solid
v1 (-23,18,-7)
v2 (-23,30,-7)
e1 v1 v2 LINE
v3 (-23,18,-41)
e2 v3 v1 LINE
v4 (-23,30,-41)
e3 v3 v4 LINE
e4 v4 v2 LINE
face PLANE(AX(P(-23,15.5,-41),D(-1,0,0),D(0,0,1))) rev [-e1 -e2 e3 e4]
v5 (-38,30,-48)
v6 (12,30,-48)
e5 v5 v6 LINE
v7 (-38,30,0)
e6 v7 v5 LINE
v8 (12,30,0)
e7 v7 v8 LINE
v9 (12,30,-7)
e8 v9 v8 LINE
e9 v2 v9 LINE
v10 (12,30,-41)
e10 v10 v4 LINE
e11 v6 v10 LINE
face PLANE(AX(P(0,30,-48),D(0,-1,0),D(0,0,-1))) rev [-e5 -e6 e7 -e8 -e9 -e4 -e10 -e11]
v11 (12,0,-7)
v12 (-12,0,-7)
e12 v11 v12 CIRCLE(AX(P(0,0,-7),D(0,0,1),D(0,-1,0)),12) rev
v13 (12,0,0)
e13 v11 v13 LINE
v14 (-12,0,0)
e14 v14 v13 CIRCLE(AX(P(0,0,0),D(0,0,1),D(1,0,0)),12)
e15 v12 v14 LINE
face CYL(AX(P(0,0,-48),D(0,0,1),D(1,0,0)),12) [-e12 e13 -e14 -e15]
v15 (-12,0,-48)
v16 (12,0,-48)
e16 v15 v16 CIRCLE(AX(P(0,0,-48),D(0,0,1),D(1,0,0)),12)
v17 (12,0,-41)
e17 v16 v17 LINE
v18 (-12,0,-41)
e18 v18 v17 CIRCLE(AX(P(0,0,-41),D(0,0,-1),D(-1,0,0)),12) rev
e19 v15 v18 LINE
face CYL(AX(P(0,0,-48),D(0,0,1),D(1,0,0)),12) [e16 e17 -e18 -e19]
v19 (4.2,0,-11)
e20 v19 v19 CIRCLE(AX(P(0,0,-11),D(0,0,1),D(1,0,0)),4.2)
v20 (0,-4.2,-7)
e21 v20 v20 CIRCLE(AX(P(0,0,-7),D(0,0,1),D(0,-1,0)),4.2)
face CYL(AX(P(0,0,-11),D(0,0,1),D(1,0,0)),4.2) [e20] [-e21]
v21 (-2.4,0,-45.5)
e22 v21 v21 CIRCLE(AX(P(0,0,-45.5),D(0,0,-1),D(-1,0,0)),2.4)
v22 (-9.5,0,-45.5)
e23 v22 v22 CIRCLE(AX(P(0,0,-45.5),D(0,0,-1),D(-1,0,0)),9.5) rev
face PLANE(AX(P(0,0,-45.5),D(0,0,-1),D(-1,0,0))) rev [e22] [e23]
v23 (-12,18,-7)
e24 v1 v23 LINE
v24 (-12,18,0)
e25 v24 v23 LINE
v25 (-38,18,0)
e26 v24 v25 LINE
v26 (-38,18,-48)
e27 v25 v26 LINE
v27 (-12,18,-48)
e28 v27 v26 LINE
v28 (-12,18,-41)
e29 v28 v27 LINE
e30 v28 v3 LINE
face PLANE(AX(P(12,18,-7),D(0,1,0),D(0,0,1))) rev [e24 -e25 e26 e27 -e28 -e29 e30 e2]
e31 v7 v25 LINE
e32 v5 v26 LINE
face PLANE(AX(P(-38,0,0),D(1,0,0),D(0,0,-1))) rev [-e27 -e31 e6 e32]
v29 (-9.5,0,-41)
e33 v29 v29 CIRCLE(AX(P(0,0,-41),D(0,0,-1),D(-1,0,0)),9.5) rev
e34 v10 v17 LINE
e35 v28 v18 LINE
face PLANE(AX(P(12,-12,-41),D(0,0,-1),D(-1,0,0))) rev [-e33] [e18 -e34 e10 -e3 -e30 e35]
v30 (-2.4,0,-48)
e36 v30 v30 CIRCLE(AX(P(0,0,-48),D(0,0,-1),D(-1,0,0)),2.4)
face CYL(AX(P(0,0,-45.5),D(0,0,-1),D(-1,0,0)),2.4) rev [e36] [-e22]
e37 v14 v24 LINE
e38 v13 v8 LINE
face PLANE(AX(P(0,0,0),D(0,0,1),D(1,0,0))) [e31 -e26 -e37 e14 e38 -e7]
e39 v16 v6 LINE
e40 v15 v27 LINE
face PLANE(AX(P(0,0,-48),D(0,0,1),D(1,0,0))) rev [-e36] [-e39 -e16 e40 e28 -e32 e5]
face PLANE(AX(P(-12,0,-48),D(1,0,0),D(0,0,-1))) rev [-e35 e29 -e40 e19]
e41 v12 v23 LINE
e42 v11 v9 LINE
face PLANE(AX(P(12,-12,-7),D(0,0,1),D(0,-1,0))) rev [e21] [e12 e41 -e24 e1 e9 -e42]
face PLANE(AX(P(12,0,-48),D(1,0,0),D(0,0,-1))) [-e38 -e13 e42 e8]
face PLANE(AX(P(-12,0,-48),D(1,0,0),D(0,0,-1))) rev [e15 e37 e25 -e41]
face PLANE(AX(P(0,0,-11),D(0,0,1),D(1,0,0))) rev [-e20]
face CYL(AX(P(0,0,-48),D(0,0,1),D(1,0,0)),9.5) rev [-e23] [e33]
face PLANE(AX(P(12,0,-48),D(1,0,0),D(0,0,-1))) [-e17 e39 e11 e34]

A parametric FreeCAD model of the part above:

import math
import FreeCAD as App
import Part
import Sketcher
from FreeCAD import Vector
Q = App.Units.Quantity

doc = App.newDocument("Part")
body = doc.addObject("PartDesign::Body", "Body")

# Sketch on XY plane
sketch1 = doc.addObject("Sketcher::SketchObject", "Sketch")
body.addObject(sketch1)
sketch1.AttachmentSupport = (doc.XY_Plane, [""])
sketch1.MapMode = "FlatFace"
sketch1.addGeometry([
    Part.LineSegment(Vector(-12, 30, 0), Vector(-12, 0, 0)),  # 0
    Part.ArcOfCircle(Part.Circle(Vector(0, 0, 0), Vector(0, 0, 1), 12), math.radians(180), math.radians(360)),  # 1
    Part.LineSegment(Vector(12, 0, 0), Vector(12, 30, 0)),  # 2
    Part.LineSegment(Vector(12, 30, 0), Vector(-12, 30, 0)),  # 3
    Part.Circle(Vector(0, 0, 0), Vector(0, 0, 1), 10),  # 4
], False)
sketch1.addConstraint([
    Sketcher.Constraint("Tangent", 0, 2, 1, 1),
    Sketcher.Constraint("Tangent", 1, 2, 2, 1),
    Sketcher.Constraint("Coincident", 2, 2, 3, 1),
    Sketcher.Constraint("Coincident", 3, 2, 0, 1),
    Sketcher.Constraint("Vertical", 0),
    Sketcher.Constraint("Vertical", 2),
    Sketcher.Constraint("Horizontal", 3),
    Sketcher.Constraint("Coincident", 1, 3, -1, 1),
    Sketcher.Constraint("Coincident", 4, 3, -1, 1),
    Sketcher.Constraint("Diameter", 4, Q("19 mm")),
    Sketcher.Constraint("Radius", 1, Q("12 mm")),
    Sketcher.Constraint("DistanceY", 0, 2, 0, 1, Q("30 mm")),
])
pad1 = doc.addObject("PartDesign::Pad", "Pad")
body.addObject(pad1)
pad1.Profile = sketch1
pad1.Length = 48
pad1.Reversed = True

# Sketch on YZ plane
sketch2 = doc.addObject("Sketcher::SketchObject", "Sketch001")
body.addObject(sketch2)
sketch2.AttachmentSupport = (doc.YZ_Plane, [""])
sketch2.MapMode = "FlatFace"
sketch2.AttachmentOffset = App.Placement(Vector(0, 0, -12), App.Rotation())
sketch2.addGeometry([
    Part.LineSegment(Vector(18, -41, 0), Vector(-12, -41, 0)),
    Part.LineSegment(Vector(-12, -41, 0), Vector(-12, -7, 0)),
    Part.LineSegment(Vector(-12, -7, 0), Vector(18, -7, 0)),
    Part.LineSegment(Vector(18, -7, 0), Vector(18, -41, 0)),
], False)
sketch2.addConstraint([
    Sketcher.Constraint("Coincident", 0, 2, 1, 1),
    Sketcher.Constraint("Coincident", 1, 2, 2, 1),
    Sketcher.Constraint("Coincident", 2, 2, 3, 1),
    Sketcher.Constraint("Coincident", 3, 2, 0, 1),
    Sketcher.Constraint("Horizontal", 0),
    Sketcher.Constraint("Vertical", 1),
    Sketcher.Constraint("Horizontal", 2),
    Sketcher.Constraint("Vertical", 3),
    Sketcher.Constraint("DistanceX", 0, 2, 0, 1, Q("30 mm")),
    Sketcher.Constraint("DistanceY", 1, 1, 1, 2, Q("34 mm")),
    Sketcher.Constraint("DistanceX", 0, 2, -1, 1, Q("12 mm")),
    Sketcher.Constraint("DistanceY", 0, 2, -1, 1, Q("41 mm")),
])
pocket1 = doc.addObject("PartDesign::Pocket", "Pocket")
body.addObject(pocket1)
pocket1.Profile = sketch2
pocket1.Type = "ThroughAll"
pocket1.Reversed = True

# Sketch on XY plane
sketch3 = doc.addObject("Sketcher::SketchObject", "Sketch002")
body.addObject(sketch3)
sketch3.AttachmentSupport = (doc.XY_Plane, [""])
sketch3.MapMode = "FlatFace"
sketch3.AttachmentOffset = App.Placement(Vector(0, 0, -45.5), App.Rotation())
sketch3.addGeometry([
    Part.Circle(Vector(0, 0, 0), Vector(0, 0, 1), 9.5),
    Part.Circle(Vector(0, 0, 0), Vector(0, 0, 1), 2.4),
], False)
sketch3.addConstraint([
    Sketcher.Constraint("Coincident", 0, 3, -1, 1),
    Sketcher.Constraint("Coincident", 1, 3, -1, 1),
    Sketcher.Constraint("Diameter", 0, Q("19 mm")),
    Sketcher.Constraint("Diameter", 1, Q("4.8 mm")),
])
pad2 = doc.addObject("PartDesign::Pad", "Pad001")
body.addObject(pad2)
pad2.Profile = sketch3
pad2.Length = 2.5
pad2.Reversed = True

# Sketch on XY plane
sketch4 = doc.addObject("Sketcher::SketchObject", "Sketch003")
body.addObject(sketch4)
sketch4.AttachmentSupport = (doc.XY_Plane, [""])
sketch4.MapMode = "FlatFace"
sketch4.addGeometry([
    Part.Circle(Vector(0, 0, 0), Vector(0, 0, 1), 9.5),
    Part.Circle(Vector(0, 0, 0), Vector(0, 0, 1), 4.2),
], False)
sketch4.addConstraint([
    Sketcher.Constraint("Coincident", 0, 3, -1, 1),
    Sketcher.Constraint("Coincident", 1, 3, -1, 1),
    Sketcher.Constraint("Diameter", 0, Q("19 mm")),
    Sketcher.Constraint("Diameter", 1, Q("8.4 mm")),
])
pad3 = doc.addObject("PartDesign::Pad", "Pad002")
body.addObject(pad3)
pad3.Profile = sketch4
pad3.Length = 7
pad3.Reversed = True

# Sketch on XY plane
sketch5 = doc.addObject("Sketcher::SketchObject", "Sketch004")
body.addObject(sketch5)
sketch5.AttachmentSupport = (doc.XY_Plane, [""])
sketch5.MapMode = "FlatFace"
sketch5.addGeometry(Part.Circle(Vector(0, 0, 0), Vector(0, 0, 1), 4.2), False)
sketch5.addConstraint([
    Sketcher.Constraint("Coincident", 0, 3, -1, 1),
    Sketcher.Constraint("Diameter", 0, Q("8.4 mm")),
])
pad4 = doc.addObject("PartDesign::Pad", "Pad003")
body.addObject(pad4)
pad4.Profile = sketch5
pad4.Length = 11
pad4.Reversed = True

# Sketch on XY plane
sketch6 = doc.addObject("Sketcher::SketchObject", "Sketch005")
body.addObject(sketch6)
sketch6.AttachmentSupport = (doc.XY_Plane, [""])
sketch6.MapMode = "FlatFace"
sketch6.AttachmentOffset = App.Placement(Vector(0, 0, -48), App.Rotation())
sketch6.addGeometry([
    Part.LineSegment(Vector(-12, 30, 0), Vector(-12, 18, 0)),
    Part.LineSegment(Vector(-12, 18, 0), Vector(-38, 18, 0)),
    Part.LineSegment(Vector(-38, 18, 0), Vector(-38, 30, 0)),
    Part.LineSegment(Vector(-38, 30, 0), Vector(-12, 30, 0)),
], False)
sketch6.addConstraint([
    Sketcher.Constraint("Coincident", 0, 2, 1, 1),
    Sketcher.Constraint("Coincident", 1, 2, 2, 1),
    Sketcher.Constraint("Coincident", 2, 2, 3, 1),
    Sketcher.Constraint("Coincident", 3, 2, 0, 1),
    Sketcher.Constraint("Vertical", 0),
    Sketcher.Constraint("Horizontal", 1),
    Sketcher.Constraint("Vertical", 2),
    Sketcher.Constraint("Horizontal", 3),
    Sketcher.Constraint("DistanceX", 1, 2, 1, 1, Q("26 mm")),
    Sketcher.Constraint("DistanceY", 0, 2, 0, 1, Q("12 mm")),
    Sketcher.Constraint("DistanceX", 0, 2, -1, 1, Q("12 mm")),
    Sketcher.Constraint("DistanceY", -1, 1, 0, 2, Q("18 mm")),
])
pad5 = doc.addObject("PartDesign::Pad", "Pad004")
body.addObject(pad5)
pad5.Profile = sketch6
pad5.Length = 48

# Sketch on XZ plane
sketch7 = doc.addObject("Sketcher::SketchObject", "Sketch006")
body.addObject(sketch7)
sketch7.AttachmentSupport = (doc.XZ_Plane, [""])
sketch7.MapMode = "FlatFace"
sketch7.AttachmentOffset = App.Placement(Vector(0, 0, -30), App.Rotation())
sketch7.addGeometry([
    Part.LineSegment(Vector(-23, -41, 0), Vector(-23, -7, 0)),
    Part.LineSegment(Vector(-23, -7, 0), Vector(12, -7, 0)),
    Part.LineSegment(Vector(12, -7, 0), Vector(12, -41, 0)),
    Part.LineSegment(Vector(12, -41, 0), Vector(-23, -41, 0)),
], False)
sketch7.addConstraint([
    Sketcher.Constraint("Coincident", 0, 2, 1, 1),
    Sketcher.Constraint("Coincident", 1, 2, 2, 1),
    Sketcher.Constraint("Coincident", 2, 2, 3, 1),
    Sketcher.Constraint("Coincident", 3, 2, 0, 1),
    Sketcher.Constraint("Vertical", 0),
    Sketcher.Constraint("Horizontal", 1),
    Sketcher.Constraint("Vertical", 2),
    Sketcher.Constraint("Horizontal", 3),
    Sketcher.Constraint("DistanceX", 1, 1, 1, 2, Q("35 mm")),
    Sketcher.Constraint("DistanceY", 0, 1, 0, 2, Q("34 mm")),
    Sketcher.Constraint("DistanceX", 0, 2, -1, 1, Q("23 mm")),
    Sketcher.Constraint("DistanceY", 0, 2, -1, 1, Q("7 mm")),
])
pocket2 = doc.addObject("PartDesign::Pocket", "Pocket001")
body.addObject(pocket2)
pocket2.Profile = sketch7
pocket2.Length = 14.5
pocket2.Reversed = True

doc.recompute()
